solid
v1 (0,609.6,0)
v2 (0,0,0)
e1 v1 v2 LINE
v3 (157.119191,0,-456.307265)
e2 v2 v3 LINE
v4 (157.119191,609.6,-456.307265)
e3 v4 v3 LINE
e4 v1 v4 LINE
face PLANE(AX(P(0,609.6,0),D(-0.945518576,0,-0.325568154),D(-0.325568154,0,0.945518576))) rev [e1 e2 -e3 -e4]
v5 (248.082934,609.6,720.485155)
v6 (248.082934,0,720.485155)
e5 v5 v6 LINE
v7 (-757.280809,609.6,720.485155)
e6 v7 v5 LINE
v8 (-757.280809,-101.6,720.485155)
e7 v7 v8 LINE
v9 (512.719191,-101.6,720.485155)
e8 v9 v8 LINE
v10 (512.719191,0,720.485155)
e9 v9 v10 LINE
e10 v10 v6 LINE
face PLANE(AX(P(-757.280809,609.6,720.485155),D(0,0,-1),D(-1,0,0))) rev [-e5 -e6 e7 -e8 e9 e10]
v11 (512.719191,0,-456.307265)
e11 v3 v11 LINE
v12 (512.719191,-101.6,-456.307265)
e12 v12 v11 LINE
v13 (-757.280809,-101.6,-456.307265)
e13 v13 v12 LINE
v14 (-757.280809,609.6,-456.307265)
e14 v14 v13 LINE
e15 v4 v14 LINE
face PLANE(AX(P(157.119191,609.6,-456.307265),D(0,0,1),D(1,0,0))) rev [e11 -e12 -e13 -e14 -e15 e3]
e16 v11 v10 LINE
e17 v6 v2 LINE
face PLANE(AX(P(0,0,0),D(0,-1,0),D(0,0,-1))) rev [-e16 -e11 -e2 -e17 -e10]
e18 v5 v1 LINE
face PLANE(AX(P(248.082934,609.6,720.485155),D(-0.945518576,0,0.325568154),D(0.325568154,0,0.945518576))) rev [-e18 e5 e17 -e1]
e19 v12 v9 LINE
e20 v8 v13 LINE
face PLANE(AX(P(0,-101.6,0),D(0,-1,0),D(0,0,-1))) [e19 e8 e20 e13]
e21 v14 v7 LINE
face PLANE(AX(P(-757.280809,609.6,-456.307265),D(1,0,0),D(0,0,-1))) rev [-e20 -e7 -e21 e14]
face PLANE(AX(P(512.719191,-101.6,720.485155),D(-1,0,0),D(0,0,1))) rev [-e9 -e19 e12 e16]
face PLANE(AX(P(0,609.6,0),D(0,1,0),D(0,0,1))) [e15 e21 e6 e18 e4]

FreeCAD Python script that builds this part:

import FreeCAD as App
import Part
import Sketcher
Q = App.Units.Quantity

doc = App.newDocument("Part")
params = doc.addObject("Spreadsheet::Sheet", "Params")
for row, (alias, value) in enumerate([
    ("sketch1_width", "36 in"),
    ("sketch1_length", "19 in"),
    ("sketch1_length2", "30 in"),
    ("pad1_length", "24 in"),
    ("sketch2_width", "50 in"),
    ("pad2_length", "4 in"),
], start=1):
    params.set(f"A{row}", alias)
    params.set(f"B{row}", "=" + value)
    params.setAlias(f"B{row}", alias)

body = doc.addObject("PartDesign::Body", "Body")

sketch1 = body.newObject("Sketcher::SketchObject", "Sketch")
sketch1.AttachmentSupport = (doc.getObject("XZ_Plane"), [""])
sketch1.MapMode = "FlatFace"
sketch1.addGeometry([
    Part.LineSegment(App.Vector(0, 0, 0), App.Vector(157.119191, -456.307265, 0)),
    Part.LineSegment(App.Vector(157.119191, -456.307265, 0), App.Vector(-757.280809, -456.307265, 0)),
    Part.LineSegment(App.Vector(-757.280809, -456.307265, 0), App.Vector(-757.280809, 720.485155, 0)),
    Part.LineSegment(App.Vector(-757.280809, 720.485155, 0), App.Vector(248.082934, 720.485155, 0)),
    Part.LineSegment(App.Vector(248.082934, 720.485155, 0), App.Vector(0, 0, 0)),
], False)
sketch1.addConstraint([
    Sketcher.Constraint("Coincident", 0, 2, 1, 1),
    Sketcher.Constraint("Coincident", 1, 2, 2, 1),
    Sketcher.Constraint("Coincident", 2, 2, 3, 1),
    Sketcher.Constraint("Coincident", 3, 2, 4, 1),
    Sketcher.Constraint("Coincident", 4, 2, 0, 1),
    Sketcher.Constraint("Horizontal", 1),
    Sketcher.Constraint("Vertical", 2),
    Sketcher.Constraint("Horizontal", 3),
    Sketcher.Constraint("Coincident", 4, 2, -1, 1),
    Sketcher.Constraint("DistanceX", 1, 2, 1, 1, Q("36 in")),
    Sketcher.Constraint("Distance", 0, Q("19 in")),
    Sketcher.Constraint("Distance", 4, Q("30 in")),
    Sketcher.Constraint("Angle", 0, Q("-71 deg")),
    Sketcher.Constraint("Angle", 4, Q("-109 deg")),
])
sketch1.setExpression("Constraints[9]", "Params.sketch1_width")
sketch1.setExpression("Constraints[10]", "Params.sketch1_length")
sketch1.setExpression("Constraints[11]", "Params.sketch1_length2")
pad1 = body.newObject("PartDesign::Pad", "Pad")
pad1.Profile = sketch1
pad1.setExpression("Length", "Params.pad1_length")
pad1.Reversed = True

sketch2 = body.newObject("Sketcher::SketchObject", "Sketch001")
sketch2.AttachmentSupport = (doc.getObject("XZ_Plane"), [""])
sketch2.MapMode = "FlatFace"
sketch2.addGeometry([
    Part.LineSegment(App.Vector(-757.280809, 720.485155, 0), App.Vector(-757.280809, -456.307265, 0)),
    Part.LineSegment(App.Vector(-757.280809, -456.307265, 0), App.Vector(512.719191, -456.307265, 0)),
    Part.LineSegment(App.Vector(512.719191, -456.307265, 0), App.Vector(512.719191, 720.485155, 0)),
    Part.LineSegment(App.Vector(512.719191, 720.485155, 0), App.Vector(-757.280809, 720.485155, 0)),
], False)
sketch2.addConstraint([
    Sketcher.Constraint("Coincident", 0, 2, 1, 1),
    Sketcher.Constraint("Coincident", 1, 2, 2, 1),
    Sketcher.Constraint("Coincident", 2, 2, 3, 1),
    Sketcher.Constraint("Coincident", 3, 2, 0, 1),
    Sketcher.Constraint("Vertical", 0),
    Sketcher.Constraint("Horizontal", 1),
    Sketcher.Constraint("Vertical", 2),
    Sketcher.Constraint("Horizontal", 3),
    Sketcher.Constraint("DistanceX", 1, 1, 1, 2, Q("50 in")),
    Sketcher.Constraint("DistanceY", 0, 2, 0, 1, 1176.792419),
    Sketcher.Constraint("DistanceX", 0, 2, -1, 1, 757.280809),
    Sketcher.Constraint("DistanceY", 0, 2, -1, 1, 456.307265),
])
sketch2.setExpression("Constraints[8]", "Params.sketch2_width")
pad2 = body.newObject("PartDesign::Pad", "Pad001")
pad2.Profile = sketch2
pad2.setExpression("Length", "Params.pad2_length")

doc.recompute()
